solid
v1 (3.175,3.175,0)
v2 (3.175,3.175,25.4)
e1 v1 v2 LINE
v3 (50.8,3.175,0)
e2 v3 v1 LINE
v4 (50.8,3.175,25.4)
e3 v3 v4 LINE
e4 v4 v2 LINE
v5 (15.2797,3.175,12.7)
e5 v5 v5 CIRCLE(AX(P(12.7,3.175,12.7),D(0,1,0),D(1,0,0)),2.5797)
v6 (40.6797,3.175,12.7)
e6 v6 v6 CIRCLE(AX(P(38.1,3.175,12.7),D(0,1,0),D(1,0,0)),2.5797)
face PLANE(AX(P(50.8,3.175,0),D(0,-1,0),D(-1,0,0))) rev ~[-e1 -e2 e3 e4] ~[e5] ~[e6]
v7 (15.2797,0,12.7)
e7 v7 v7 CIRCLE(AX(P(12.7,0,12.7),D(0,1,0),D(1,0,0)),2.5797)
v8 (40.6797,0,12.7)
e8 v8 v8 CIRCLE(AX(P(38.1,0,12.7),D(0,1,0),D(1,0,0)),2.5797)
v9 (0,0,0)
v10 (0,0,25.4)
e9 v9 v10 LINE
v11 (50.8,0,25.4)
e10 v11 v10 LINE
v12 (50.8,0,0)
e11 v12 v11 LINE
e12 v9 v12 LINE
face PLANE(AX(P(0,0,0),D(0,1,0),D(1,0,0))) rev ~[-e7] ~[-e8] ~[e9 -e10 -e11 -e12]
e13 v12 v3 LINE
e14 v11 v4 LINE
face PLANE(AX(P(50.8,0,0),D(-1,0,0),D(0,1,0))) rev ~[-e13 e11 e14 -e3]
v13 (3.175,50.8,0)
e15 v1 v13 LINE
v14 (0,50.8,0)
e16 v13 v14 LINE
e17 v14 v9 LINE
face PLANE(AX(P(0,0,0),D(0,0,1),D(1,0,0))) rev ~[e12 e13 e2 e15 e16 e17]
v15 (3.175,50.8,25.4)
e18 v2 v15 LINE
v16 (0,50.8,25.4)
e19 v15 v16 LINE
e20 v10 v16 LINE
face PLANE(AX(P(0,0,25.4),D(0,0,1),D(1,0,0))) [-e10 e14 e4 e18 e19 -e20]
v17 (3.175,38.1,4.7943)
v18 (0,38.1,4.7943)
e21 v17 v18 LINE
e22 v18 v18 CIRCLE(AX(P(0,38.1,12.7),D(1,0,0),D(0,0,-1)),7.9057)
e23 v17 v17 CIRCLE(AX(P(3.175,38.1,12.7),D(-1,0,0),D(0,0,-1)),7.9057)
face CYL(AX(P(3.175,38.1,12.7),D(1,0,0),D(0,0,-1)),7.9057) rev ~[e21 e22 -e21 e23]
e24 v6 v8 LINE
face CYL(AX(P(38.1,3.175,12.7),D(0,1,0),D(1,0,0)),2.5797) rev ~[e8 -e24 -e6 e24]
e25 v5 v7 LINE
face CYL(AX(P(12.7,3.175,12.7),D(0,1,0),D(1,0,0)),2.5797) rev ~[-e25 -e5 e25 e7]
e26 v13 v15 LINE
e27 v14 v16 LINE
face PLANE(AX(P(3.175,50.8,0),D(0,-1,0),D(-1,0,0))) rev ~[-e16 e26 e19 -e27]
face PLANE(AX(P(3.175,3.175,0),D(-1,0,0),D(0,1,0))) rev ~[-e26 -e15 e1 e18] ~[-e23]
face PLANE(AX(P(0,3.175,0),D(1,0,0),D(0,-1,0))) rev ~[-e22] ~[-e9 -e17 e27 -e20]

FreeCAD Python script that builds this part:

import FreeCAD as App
import Part
import Sketcher

V = App.Vector
Q = App.Units.Quantity


def add_polygon(sketch, points):
    """Adds a closed chain of lines whose ends are joined by coincident constraints."""
    first, n = sketch.GeometryCount, len(points)
    for a, b in zip(points, points[1:] + points[:1]):
        sketch.addGeometry(Part.LineSegment(App.Vector(*a, 0), App.Vector(*b, 0)), False)
    for i in range(n):
        sketch.addConstraint(Sketcher.Constraint("Coincident", first + i, 2, first + (i + 1) % n, 1))

doc = App.newDocument("Part")
body = doc.addObject("PartDesign::Body", "Body")

# Sketch on XY plane
sketch1 = body.newObject("Sketcher::SketchObject", "Sketch")
sketch1.AttachmentSupport = (doc.getObject("XY_Plane"), [""])
sketch1.MapMode = "FlatFace"
add_polygon(sketch1, [(0, 0), (50.8, 0), (50.8, 3.2), (3.2, 3.2), (3.2, 50.8), (0, 50.8)])  # lines 0-5
sketch1.addConstraint([
    Sketcher.Constraint("Horizontal", 0),
    Sketcher.Constraint("Vertical", 1),
    Sketcher.Constraint("Horizontal", 2),
    Sketcher.Constraint("Vertical", 3),
    Sketcher.Constraint("Horizontal", 4),
    Sketcher.Constraint("Vertical", 5),
    Sketcher.Constraint("Coincident", 5, 2, -1, 1),
    Sketcher.Constraint("Equal", 4, 1),
    Sketcher.Constraint("Equal", 2, 3),
    Sketcher.Constraint("DistanceX", 0, 1, 0, 2, Q("2 in")),
    Sketcher.Constraint("DistanceX", 4, 2, 4, 1, Q("0.125 in")),
])
pad1 = body.newObject("PartDesign::Pad", "Pad")
pad1.Profile = sketch1
pad1.Length = Q("1 in")

# Sketch on YZ plane
sketch2 = body.newObject("Sketcher::SketchObject", "Sketch001")
sketch2.AttachmentSupport = (doc.getObject("YZ_Plane"), [""])
sketch2.MapMode = "FlatFace"
sketch2.AttachmentOffset = App.Placement(V(0, 0, 0.125 * 25.4), App.Rotation())
sketch2.addGeometry(Part.Circle(V(38, 13, 0), V(0, 0, 1), 8), False)
sketch2.addConstraint([
    Sketcher.Constraint("Diameter", 0, Q("0.6225 in")),
    Sketcher.Constraint("DistanceX", -1, 1, 0, 3, Q("1.5 in")),
    Sketcher.Constraint("DistanceY", -1, 1, 0, 3, Q("0.5 in")),
])
pocket1 = body.newObject("PartDesign::Pocket", "Pocket")
pocket1.Profile = sketch2
pocket1.Length = Q("1 in")

# Sketch on XZ plane
sketch3 = body.newObject("Sketcher::SketchObject", "Sketch002")
sketch3.AttachmentSupport = (doc.getObject("XZ_Plane"), [""])
sketch3.MapMode = "FlatFace"
sketch3.AttachmentOffset = App.Placement(V(0, 0, -0.125 * 25.4), App.Rotation())
sketch3.addGeometry([
    Part.Circle(V(38.1, 12.7, 0), V(0, 0, 1), 2.6),
    Part.Circle(V(12.7, 12.7, 0), V(0, 0, 1), 2.6),
], False)
sketch3.addConstraint([
    Sketcher.Constraint("Equal", 0, 1),
    Sketcher.Constraint("Horizontal", 0, 3, 1, 3),
    Sketcher.Constraint("Diameter", 0, Q("0.203126 in")),
    Sketcher.Constraint("DistanceX", 1, 3, 0, 3, Q("1 in")),
    Sketcher.Constraint("DistanceY", -1, 1, 0, 3, Q("0.5 in")),
    Sketcher.Constraint("DistanceX", -1, 1, 1, 3, Q("0.5 in")),
])
pocket2 = body.newObject("PartDesign::Pocket", "Pocket001")
pocket2.Profile = sketch3
pocket2.Length = Q("1 in")
pocket2.Reversed = True

doc.recompute()
